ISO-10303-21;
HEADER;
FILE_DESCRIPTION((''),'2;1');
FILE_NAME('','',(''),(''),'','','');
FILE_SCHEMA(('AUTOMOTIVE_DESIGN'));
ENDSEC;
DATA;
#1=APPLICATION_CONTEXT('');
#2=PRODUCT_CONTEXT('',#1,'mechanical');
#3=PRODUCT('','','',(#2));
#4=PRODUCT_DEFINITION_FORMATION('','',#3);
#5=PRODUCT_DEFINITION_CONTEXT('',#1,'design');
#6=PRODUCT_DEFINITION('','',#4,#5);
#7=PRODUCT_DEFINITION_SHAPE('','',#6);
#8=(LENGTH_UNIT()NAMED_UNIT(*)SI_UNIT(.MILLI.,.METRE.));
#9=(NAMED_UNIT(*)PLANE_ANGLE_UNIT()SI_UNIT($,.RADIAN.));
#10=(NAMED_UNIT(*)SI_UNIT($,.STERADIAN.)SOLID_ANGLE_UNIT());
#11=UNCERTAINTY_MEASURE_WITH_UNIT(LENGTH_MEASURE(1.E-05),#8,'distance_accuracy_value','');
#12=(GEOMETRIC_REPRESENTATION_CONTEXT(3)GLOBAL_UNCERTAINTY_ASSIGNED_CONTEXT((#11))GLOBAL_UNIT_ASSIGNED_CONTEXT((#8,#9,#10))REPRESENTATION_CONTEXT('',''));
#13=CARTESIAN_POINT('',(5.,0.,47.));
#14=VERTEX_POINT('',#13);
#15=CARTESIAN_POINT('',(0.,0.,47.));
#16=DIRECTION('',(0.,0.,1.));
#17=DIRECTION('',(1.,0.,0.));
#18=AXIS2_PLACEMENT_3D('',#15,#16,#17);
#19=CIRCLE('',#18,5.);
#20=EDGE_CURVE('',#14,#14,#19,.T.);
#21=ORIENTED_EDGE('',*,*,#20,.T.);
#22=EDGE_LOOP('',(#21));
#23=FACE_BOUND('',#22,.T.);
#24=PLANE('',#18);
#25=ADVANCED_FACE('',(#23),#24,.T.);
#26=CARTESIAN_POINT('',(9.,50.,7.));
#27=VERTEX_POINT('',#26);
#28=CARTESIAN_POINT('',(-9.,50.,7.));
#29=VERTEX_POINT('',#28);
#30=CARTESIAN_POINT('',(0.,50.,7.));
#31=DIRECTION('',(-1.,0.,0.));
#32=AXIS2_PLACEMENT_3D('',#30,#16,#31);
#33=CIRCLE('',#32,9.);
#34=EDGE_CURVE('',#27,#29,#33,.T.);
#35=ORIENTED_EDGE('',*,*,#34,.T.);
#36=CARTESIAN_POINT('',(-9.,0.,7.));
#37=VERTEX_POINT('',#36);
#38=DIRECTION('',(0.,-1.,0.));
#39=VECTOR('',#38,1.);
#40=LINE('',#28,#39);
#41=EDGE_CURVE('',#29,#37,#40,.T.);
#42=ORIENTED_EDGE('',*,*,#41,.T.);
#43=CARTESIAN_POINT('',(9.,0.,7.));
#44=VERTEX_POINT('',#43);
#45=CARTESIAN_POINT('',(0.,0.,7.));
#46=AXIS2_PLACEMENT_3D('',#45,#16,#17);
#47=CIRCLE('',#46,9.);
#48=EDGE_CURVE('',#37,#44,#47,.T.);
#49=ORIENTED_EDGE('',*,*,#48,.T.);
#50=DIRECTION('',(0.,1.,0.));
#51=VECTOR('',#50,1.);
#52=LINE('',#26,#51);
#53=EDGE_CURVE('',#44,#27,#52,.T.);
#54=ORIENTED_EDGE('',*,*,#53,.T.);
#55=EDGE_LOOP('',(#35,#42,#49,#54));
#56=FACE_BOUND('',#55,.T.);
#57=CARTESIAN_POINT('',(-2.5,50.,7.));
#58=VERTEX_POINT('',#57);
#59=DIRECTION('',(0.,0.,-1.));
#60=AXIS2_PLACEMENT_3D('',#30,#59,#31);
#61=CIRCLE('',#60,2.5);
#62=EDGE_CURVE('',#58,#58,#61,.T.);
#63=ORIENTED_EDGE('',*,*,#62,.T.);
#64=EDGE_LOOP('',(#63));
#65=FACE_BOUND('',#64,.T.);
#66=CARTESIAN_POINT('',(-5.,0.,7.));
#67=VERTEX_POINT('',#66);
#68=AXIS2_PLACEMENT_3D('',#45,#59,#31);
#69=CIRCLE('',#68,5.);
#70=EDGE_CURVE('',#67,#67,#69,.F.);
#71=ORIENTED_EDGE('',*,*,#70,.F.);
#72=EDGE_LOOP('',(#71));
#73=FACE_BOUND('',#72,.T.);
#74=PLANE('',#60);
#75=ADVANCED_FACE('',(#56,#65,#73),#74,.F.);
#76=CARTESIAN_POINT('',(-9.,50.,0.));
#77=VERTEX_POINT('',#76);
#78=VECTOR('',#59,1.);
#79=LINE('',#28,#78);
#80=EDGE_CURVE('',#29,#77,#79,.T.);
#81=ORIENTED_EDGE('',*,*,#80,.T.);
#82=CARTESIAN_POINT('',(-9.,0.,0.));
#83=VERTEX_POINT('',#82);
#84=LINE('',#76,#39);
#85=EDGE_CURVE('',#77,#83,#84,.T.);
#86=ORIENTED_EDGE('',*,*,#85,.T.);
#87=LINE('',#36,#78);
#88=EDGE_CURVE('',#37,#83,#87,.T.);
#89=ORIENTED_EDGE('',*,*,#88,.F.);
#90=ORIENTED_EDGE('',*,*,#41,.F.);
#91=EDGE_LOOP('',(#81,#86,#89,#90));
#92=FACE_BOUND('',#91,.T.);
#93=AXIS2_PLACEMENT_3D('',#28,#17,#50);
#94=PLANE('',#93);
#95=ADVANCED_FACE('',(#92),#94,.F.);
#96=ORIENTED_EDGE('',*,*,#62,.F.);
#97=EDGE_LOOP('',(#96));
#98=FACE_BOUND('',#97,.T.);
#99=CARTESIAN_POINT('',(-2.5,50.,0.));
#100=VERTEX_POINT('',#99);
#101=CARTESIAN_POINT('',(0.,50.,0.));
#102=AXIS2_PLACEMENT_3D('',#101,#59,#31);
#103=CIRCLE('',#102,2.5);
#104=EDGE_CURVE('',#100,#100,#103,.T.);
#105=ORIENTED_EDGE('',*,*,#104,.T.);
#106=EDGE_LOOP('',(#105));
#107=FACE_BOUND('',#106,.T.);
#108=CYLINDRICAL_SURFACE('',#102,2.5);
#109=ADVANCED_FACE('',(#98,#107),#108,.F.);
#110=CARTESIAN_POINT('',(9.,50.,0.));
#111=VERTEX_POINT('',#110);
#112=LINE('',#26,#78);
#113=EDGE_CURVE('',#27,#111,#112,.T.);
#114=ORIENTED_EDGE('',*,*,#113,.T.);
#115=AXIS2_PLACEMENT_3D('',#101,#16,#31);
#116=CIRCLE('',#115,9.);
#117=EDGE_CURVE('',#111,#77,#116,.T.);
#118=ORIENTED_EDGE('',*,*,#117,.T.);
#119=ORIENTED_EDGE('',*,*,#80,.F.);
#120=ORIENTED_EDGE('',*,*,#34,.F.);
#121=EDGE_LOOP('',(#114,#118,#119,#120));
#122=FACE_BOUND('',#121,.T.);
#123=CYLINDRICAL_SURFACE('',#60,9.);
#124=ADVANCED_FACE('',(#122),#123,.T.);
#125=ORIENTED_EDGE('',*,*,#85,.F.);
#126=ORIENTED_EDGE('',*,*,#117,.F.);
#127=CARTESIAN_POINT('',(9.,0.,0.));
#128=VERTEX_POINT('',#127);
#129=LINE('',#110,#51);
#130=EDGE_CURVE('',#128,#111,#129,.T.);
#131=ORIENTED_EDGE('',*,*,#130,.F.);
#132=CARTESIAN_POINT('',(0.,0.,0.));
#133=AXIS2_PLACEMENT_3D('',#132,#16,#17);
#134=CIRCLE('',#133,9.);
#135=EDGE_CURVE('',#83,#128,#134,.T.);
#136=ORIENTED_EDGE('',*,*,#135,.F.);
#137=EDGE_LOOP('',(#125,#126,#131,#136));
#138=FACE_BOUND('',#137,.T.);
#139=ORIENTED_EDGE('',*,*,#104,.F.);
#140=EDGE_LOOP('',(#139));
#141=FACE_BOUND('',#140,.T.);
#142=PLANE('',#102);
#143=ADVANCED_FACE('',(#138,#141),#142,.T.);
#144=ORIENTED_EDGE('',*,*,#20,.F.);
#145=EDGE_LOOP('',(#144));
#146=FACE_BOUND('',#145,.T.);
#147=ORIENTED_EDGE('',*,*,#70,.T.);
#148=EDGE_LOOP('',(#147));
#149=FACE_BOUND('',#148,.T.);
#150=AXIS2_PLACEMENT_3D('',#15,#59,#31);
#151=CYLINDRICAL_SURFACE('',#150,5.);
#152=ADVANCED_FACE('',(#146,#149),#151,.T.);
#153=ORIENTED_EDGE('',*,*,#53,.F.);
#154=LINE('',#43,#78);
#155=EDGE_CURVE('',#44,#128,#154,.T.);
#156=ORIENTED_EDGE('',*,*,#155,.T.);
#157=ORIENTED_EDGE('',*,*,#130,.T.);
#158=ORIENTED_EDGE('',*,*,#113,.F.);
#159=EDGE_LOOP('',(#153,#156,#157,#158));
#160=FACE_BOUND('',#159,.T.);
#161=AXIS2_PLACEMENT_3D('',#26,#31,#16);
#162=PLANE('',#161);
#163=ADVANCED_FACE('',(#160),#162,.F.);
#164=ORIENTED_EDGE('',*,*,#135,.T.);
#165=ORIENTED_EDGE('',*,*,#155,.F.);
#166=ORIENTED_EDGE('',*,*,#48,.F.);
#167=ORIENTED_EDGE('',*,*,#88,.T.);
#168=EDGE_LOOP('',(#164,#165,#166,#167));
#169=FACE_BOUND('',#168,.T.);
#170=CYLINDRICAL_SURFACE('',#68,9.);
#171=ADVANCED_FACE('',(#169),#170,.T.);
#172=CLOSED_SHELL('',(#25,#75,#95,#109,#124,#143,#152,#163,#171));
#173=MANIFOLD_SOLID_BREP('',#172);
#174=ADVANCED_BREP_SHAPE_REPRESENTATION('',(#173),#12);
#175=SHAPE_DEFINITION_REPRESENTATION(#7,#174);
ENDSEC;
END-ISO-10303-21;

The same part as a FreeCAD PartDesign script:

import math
import FreeCAD as App
import Part
import Sketcher

doc = App.newDocument("Part")
body = doc.addObject("PartDesign::Body", "Body")

# Sketch on XY plane
sketch1 = body.newObject("Sketcher::SketchObject", "Sketch")
sketch1.AttachmentSupport = (doc.getObject("XY_Plane"), [""])
sketch1.MapMode = "FlatFace"
sketch1.addGeometry(Part.LineSegment(App.Vector(-9, 50, 0), App.Vector(-9, 0, 0)), False)
sketch1.addGeometry(Part.ArcOfCircle(Part.Circle(App.Vector(0, 0, 0), App.Vector(0, 0, 1), 9), math.radians(180), math.radians(360)), False)
sketch1.addGeometry(Part.LineSegment(App.Vector(9, 0, 0), App.Vector(9, 50, 0)), False)
sketch1.addGeometry(Part.ArcOfCircle(Part.Circle(App.Vector(0, 50, 0), App.Vector(0, 0, 1), 9), math.radians(0), math.radians(180)), False)
sketch1.addConstraint(Sketcher.Constraint("Tangent", 0, 2, 1, 1))
sketch1.addConstraint(Sketcher.Constraint("Tangent", 1, 2, 2, 1))
sketch1.addConstraint(Sketcher.Constraint("Tangent", 2, 2, 3, 1))
sketch1.addConstraint(Sketcher.Constraint("Tangent", 3, 2, 0, 1))
sketch1.addConstraint(Sketcher.Constraint("Vertical", 0))
sketch1.addConstraint(Sketcher.Constraint("Vertical", 2))
sketch1.addConstraint(Sketcher.Constraint("Coincident", 1, 3, -1, 1))
sketch1.addConstraint(Sketcher.Constraint("Radius", 1, 9.0))
sketch1.addConstraint(Sketcher.Constraint("DistanceY", 0, 2, 0, 1, 50.0))
pad1 = body.newObject("PartDesign::Pad", "Pad")
pad1.Profile = sketch1
pad1.Length = 7

# Sketch on XY plane
sketch2 = body.newObject("Sketcher::SketchObject", "Sketch001")
sketch2.AttachmentSupport = (doc.getObject("XY_Plane"), [""])
sketch2.MapMode = "FlatFace"
sketch2.AttachmentOffset = App.Placement(App.Vector(0, 0, 7), App.Rotation())
sketch2.addGeometry(Part.Circle(App.Vector(0, 0, 0), App.Vector(0, 0, 1), 5), False)
sketch2.addConstraint(Sketcher.Constraint("Coincident", 0, 3, -1, 1))
sketch2.addConstraint(Sketcher.Constraint("Diameter", 0, 10.0))
pad2 = body.newObject("PartDesign::Pad", "Pad001")
pad2.Profile = sketch2
pad2.Length = 40

# Sketch on XY plane
sketch3 = body.newObject("Sketcher::SketchObject", "Sketch002")
sketch3.AttachmentSupport = (doc.getObject("XY_Plane"), [""])
sketch3.MapMode = "FlatFace"
sketch3.addGeometry(Part.Circle(App.Vector(0, 50, 0), App.Vector(0, 0, 1), 2.5), False)
sketch3.addConstraint(Sketcher.Constraint("PointOnObject", 0, 3, -2))
sketch3.addConstraint(Sketcher.Constraint("Diameter", 0, 5.0))
sketch3.addConstraint(Sketcher.Constraint("DistanceY", -1, 1, 0, 3, 50.0))
doc.recompute()
hole = body.newObject("PartDesign::Hole", "Hole")
hole.Profile = sketch3
hole.ThreadType = "None"
hole.Diameter = 5
hole.DepthType = "Dimension"
hole.Depth = 15
hole.DrillPoint = "Angled"
hole.DrillPointAngle = 118
hole.Reversed = True

doc.recompute()
